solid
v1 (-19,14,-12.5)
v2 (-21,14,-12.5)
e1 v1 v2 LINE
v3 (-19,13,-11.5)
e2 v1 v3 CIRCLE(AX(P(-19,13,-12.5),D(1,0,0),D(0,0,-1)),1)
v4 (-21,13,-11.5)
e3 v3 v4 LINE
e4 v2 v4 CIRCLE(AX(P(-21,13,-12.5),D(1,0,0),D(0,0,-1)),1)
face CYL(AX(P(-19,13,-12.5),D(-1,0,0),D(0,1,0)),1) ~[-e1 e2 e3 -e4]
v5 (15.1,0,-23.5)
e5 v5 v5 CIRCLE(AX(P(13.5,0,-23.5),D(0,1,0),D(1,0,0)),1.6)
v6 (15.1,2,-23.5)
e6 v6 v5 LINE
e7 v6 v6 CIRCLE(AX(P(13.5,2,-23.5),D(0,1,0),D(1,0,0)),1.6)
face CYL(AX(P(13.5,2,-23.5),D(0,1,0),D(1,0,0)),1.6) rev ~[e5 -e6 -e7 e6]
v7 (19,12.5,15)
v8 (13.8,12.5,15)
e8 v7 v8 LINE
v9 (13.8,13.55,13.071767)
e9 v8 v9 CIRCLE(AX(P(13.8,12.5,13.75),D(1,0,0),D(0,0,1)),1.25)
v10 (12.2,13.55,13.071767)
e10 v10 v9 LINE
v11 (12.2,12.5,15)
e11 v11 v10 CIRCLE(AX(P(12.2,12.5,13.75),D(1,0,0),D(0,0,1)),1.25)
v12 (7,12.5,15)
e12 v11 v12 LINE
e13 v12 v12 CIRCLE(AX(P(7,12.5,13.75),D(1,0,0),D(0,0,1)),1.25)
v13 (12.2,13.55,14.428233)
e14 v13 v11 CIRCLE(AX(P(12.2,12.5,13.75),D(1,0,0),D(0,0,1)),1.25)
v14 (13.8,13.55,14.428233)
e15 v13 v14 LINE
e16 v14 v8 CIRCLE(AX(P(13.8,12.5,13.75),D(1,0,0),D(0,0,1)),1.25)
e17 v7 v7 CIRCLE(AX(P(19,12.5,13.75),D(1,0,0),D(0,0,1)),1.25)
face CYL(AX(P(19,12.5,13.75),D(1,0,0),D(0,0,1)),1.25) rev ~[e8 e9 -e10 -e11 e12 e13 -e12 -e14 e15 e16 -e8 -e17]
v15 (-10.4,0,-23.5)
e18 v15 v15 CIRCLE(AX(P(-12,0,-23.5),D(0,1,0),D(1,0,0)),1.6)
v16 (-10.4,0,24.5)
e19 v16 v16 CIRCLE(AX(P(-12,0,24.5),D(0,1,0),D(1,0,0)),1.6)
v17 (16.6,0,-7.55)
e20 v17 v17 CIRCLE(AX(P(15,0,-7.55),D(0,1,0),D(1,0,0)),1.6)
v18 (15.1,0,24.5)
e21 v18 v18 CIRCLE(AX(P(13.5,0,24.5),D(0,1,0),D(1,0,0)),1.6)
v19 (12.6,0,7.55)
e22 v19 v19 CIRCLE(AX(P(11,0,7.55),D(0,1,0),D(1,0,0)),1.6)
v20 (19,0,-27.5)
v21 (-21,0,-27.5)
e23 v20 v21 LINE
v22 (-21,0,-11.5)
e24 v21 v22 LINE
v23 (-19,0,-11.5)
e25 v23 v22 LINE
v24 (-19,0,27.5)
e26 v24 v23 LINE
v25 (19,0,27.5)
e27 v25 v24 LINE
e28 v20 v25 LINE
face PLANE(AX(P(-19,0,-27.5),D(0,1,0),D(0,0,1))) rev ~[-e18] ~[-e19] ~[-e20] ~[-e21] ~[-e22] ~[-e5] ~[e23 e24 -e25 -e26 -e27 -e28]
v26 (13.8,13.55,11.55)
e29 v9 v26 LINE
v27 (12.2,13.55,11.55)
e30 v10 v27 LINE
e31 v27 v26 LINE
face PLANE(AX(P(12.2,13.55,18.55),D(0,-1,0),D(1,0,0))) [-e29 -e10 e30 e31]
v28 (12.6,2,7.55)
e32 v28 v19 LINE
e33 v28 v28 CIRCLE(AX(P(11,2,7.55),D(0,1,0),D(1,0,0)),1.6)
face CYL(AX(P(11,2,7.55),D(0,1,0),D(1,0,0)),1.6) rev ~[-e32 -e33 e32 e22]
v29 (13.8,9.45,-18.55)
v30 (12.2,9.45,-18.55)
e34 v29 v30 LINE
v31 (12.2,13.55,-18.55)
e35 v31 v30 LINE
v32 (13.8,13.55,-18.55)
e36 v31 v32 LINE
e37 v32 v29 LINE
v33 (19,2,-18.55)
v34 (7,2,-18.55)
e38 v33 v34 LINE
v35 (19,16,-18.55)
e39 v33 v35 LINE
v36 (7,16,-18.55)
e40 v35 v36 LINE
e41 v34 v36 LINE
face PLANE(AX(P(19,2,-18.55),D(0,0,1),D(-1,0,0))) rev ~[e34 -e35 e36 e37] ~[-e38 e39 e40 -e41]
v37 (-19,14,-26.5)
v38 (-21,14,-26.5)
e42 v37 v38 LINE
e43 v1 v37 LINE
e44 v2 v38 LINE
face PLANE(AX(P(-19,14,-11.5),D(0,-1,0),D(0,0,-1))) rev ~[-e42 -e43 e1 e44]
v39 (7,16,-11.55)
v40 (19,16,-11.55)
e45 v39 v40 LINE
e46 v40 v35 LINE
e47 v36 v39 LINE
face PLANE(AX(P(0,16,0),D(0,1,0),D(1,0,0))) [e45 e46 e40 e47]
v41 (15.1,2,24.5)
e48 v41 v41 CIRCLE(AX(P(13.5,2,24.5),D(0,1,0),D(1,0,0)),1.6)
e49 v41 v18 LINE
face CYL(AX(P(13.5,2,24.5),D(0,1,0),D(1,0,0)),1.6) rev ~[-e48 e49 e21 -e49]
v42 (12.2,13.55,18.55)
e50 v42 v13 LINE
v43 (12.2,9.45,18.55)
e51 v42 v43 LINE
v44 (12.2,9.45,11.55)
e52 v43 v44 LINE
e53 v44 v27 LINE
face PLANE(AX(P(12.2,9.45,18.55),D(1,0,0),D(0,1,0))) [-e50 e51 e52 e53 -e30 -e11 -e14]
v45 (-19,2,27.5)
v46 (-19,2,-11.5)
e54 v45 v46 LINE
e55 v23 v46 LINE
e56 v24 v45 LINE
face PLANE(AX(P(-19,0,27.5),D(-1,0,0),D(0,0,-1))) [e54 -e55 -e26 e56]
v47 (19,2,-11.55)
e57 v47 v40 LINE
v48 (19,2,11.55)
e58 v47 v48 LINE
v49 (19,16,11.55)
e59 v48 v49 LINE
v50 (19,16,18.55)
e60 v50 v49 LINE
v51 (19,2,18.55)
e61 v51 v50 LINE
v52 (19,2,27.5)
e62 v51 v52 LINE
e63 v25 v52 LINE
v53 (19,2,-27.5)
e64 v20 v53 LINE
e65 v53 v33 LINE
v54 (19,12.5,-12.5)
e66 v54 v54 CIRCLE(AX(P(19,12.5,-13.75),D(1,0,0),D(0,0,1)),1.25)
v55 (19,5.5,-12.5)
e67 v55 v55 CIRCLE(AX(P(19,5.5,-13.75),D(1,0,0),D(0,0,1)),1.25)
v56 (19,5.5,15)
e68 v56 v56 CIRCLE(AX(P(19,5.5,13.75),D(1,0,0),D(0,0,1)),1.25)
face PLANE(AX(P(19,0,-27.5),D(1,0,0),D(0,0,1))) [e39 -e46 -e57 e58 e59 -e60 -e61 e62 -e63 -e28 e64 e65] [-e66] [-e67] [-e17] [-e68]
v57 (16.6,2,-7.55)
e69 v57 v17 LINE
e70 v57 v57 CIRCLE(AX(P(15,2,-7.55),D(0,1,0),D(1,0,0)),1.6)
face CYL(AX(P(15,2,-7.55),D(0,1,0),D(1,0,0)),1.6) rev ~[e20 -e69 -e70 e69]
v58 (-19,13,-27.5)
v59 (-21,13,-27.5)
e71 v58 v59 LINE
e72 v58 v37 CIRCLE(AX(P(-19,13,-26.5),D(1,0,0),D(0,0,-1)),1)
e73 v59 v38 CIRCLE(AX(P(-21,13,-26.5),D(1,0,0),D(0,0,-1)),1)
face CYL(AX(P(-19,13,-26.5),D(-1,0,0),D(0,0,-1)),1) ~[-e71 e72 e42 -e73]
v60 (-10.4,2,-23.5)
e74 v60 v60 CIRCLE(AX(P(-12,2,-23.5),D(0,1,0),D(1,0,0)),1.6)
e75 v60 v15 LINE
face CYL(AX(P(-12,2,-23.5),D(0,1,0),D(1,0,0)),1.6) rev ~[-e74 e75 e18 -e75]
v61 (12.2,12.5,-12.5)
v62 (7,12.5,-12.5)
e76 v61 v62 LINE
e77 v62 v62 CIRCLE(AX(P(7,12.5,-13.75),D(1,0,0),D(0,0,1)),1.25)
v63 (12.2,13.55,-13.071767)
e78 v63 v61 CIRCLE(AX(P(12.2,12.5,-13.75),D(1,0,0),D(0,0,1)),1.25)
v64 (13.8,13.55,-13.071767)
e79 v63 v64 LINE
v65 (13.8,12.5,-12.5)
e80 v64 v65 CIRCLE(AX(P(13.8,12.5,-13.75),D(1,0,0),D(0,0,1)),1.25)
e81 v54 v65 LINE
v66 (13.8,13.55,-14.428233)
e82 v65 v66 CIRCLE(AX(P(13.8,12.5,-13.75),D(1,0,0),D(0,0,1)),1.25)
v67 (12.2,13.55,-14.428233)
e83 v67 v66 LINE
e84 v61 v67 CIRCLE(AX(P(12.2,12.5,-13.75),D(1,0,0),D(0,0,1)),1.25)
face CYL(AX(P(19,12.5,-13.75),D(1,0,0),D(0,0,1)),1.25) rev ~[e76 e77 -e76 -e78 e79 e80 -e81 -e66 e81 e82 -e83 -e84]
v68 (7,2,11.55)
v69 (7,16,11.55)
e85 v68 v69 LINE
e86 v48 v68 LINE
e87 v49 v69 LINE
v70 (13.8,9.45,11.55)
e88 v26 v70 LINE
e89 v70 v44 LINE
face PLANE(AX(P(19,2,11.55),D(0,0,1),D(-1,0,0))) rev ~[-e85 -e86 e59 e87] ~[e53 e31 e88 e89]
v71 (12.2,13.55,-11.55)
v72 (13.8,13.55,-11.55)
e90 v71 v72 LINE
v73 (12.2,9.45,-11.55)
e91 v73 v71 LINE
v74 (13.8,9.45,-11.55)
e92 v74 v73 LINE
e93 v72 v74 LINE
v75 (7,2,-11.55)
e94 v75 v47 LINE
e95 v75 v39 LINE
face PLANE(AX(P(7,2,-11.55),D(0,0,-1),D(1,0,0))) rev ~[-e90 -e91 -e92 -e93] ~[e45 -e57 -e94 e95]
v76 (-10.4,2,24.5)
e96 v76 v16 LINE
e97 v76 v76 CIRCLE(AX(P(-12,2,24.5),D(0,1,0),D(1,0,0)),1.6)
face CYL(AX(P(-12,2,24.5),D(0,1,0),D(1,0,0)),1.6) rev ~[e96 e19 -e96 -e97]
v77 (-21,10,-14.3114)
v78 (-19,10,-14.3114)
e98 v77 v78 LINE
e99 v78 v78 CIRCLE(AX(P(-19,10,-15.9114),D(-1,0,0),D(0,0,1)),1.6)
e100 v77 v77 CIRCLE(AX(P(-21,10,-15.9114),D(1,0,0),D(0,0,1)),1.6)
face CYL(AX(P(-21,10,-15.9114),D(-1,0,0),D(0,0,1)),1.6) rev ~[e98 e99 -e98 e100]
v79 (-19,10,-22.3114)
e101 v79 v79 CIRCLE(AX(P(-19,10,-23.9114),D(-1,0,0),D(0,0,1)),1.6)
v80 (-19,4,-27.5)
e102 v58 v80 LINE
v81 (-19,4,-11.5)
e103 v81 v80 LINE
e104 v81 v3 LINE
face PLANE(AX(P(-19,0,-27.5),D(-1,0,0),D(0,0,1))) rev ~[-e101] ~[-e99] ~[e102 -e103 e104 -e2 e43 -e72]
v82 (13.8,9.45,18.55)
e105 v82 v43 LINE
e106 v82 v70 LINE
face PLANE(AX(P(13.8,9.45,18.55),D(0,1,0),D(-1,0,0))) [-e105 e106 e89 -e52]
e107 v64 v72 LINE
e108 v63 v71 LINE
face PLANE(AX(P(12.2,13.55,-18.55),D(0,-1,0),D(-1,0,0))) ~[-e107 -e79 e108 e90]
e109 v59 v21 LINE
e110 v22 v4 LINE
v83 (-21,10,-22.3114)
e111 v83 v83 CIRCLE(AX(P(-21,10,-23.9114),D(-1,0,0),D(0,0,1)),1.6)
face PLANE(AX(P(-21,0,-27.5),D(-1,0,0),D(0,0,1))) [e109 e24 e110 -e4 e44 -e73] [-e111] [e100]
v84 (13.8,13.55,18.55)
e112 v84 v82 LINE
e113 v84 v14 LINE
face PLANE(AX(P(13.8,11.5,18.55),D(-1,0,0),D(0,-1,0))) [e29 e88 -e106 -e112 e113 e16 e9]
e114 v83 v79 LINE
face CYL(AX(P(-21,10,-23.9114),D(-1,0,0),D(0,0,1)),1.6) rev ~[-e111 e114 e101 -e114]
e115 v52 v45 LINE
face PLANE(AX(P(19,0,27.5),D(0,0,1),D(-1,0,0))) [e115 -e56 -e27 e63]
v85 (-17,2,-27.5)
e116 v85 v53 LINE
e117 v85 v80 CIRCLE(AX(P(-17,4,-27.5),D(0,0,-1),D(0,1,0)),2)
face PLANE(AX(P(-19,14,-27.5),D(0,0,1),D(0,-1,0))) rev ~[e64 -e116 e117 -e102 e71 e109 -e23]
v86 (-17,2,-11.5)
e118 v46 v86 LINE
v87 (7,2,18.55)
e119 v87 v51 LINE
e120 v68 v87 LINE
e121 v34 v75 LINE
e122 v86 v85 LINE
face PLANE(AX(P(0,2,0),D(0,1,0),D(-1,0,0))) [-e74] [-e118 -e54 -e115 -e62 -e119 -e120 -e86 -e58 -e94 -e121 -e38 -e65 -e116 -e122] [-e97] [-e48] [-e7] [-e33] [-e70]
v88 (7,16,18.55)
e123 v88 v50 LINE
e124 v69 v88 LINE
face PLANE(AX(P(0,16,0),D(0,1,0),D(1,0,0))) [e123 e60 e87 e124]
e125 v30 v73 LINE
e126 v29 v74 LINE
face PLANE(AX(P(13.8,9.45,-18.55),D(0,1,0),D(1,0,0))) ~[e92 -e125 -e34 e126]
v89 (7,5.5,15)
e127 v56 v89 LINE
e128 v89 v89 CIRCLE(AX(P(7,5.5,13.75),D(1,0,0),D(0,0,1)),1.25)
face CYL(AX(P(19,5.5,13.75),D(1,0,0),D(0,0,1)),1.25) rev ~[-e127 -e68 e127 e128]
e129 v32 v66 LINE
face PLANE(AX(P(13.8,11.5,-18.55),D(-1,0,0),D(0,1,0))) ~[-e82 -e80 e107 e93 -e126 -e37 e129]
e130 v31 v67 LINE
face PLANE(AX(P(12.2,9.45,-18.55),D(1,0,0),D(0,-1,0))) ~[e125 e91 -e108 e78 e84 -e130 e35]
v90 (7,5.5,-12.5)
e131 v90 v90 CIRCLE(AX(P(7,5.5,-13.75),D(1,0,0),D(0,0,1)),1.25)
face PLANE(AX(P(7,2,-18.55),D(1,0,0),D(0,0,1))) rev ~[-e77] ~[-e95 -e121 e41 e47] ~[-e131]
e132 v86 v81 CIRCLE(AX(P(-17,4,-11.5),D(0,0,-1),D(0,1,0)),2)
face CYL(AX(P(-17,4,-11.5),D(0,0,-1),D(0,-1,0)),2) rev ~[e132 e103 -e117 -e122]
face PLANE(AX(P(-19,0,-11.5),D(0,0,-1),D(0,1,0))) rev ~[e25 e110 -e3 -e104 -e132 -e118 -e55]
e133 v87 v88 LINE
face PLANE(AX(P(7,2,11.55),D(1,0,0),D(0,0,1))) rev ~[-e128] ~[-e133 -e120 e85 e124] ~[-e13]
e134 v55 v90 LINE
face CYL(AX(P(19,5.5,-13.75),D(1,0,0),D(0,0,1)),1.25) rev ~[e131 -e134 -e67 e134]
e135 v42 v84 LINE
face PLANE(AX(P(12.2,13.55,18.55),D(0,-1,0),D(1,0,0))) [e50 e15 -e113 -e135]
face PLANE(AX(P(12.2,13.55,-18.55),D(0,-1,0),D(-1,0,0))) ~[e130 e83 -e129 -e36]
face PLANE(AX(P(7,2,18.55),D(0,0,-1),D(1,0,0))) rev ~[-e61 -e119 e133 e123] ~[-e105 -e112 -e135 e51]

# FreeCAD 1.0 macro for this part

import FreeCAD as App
import Part
import Sketcher
Q = App.Units.Quantity


def edges_at(feature, points):
    """Names of the edges that pass closest to the given points."""
    edges = feature.Shape.Edges
    near = lambda p: min(range(len(edges)), key=lambda i: edges[i].distToShape(Part.Vertex(*p))[0])
    return sorted({f"Edge{near(p) + 1}" for p in points})


def add_polygon(sketch, points):
    """Adds a closed chain of lines whose ends are joined by coincident constraints."""
    first, n = sketch.GeometryCount, len(points)
    for a, b in zip(points, points[1:] + points[:1]):
        sketch.addGeometry(Part.LineSegment(App.Vector(*a, 0), App.Vector(*b, 0)), False)
    for i in range(n):
        sketch.addConstraint(Sketcher.Constraint("Coincident", first + i, 2, first + (i + 1) % n, 1))

doc = App.newDocument("Part")
params = doc.addObject("Spreadsheet::Sheet", "Params")
for row, (alias, value) in enumerate([
    ("sketch1_width", "38 mm"),
    ("sketch1_height", "55 mm"),
    ("pad1_length", "2 mm"),
    ("sketch2_width", "12 mm"),
    ("sketch2_height", "7 mm"),
    ("pad2_length", "14 mm"),
    ("sketch3_diameter", "3.2 mm"),
    ("pocket1_length", "14 mm"),
    ("sketch4_diameter", "2.5 mm"),
    ("pocket2_length", "14 mm"),
    ("sketch5_diameter", "3.2 mm"),
    ("pocket3_length", "10 mm"),
    ("sketch6_width", "1.6 mm"),
    ("sketch6_height", "4.1 mm"),
    ("pocket4_length", "12 mm"),
    ("sketch7_width", "14 mm"),
    ("sketch7_height", "16 mm"),
    ("pad3_length", "2 mm"),
    ("sketch8_diameter", "3.2 mm"),
    ("pocket5_length", "2 mm"),
    ("fillet_radius", "2 mm"),
    ("fillet2_radius", "1 mm"),
], start=1):
    params.set(f"A{row}", alias)
    params.set(f"B{row}", "=" + value)
    params.setAlias(f"B{row}", alias)

body = doc.addObject("PartDesign::Body", "Body")

# Sketch on XZ plane
sketch1 = body.newObject("Sketcher::SketchObject", "Sketch")
sketch1.AttachmentSupport = (doc.getObject("XZ_Plane"), [""])
sketch1.MapMode = "FlatFace"
add_polygon(sketch1, [(-19, 27.5), (19, 27.5), (19, -27.5), (-19, -27.5)])  # lines 0-3
sketch1.addConstraint([
    Sketcher.Constraint("Horizontal", 0),
    Sketcher.Constraint("Vertical", 1),
    Sketcher.Constraint("Horizontal", 2),
    Sketcher.Constraint("Vertical", 3),
    Sketcher.Constraint("Symmetric", 0, 2, 2, 2, -1, 1),
    Sketcher.Constraint("DistanceX", 0, 1, 0, 2, Q("38 mm")),
    Sketcher.Constraint("DistanceY", 1, 2, 1, 1, Q("55 mm")),
])
sketch1.setExpression("Constraints[9]", "Params.sketch1_width")
sketch1.setExpression("Constraints[10]", "Params.sketch1_height")
pad1 = body.newObject("PartDesign::Pad", "Pad")
pad1.Profile = sketch1
pad1.setExpression("Length", "Params.pad1_length")
pad1.Reversed = True

# Sketch on XZ plane
sketch2 = body.newObject("Sketcher::SketchObject", "Sketch001")
sketch2.AttachmentSupport = (doc.getObject("XZ_Plane"), [""])
sketch2.MapMode = "FlatFace"
sketch2.AttachmentOffset = App.Placement(App.Vector(0, 0, -2), App.Rotation())
add_polygon(sketch2, [(7, 11.55), (7, 18.55), (19, 18.55), (19, 11.55)])  # lines 0-3
add_polygon(sketch2, [(7, -11.55), (19, -11.55), (19, -18.55), (7, -18.55)])  # lines 4-7
sketch2.addConstraint([
    Sketcher.Constraint("Vertical", 0),
    Sketcher.Constraint("Horizontal", 1),
    Sketcher.Constraint("Vertical", 2),
    Sketcher.Constraint("Horizontal", 3),
    Sketcher.Constraint("Horizontal", 4),
    Sketcher.Constraint("Vertical", 5),
    Sketcher.Constraint("Horizontal", 6),
    Sketcher.Constraint("Vertical", 7),
    Sketcher.Constraint("Symmetric", 2, 2, 4, 2, -1),
    Sketcher.Constraint("Symmetric", 0, 2, 6, 2, -1),
    Sketcher.Constraint("DistanceX", 1, 1, 1, 2, Q("12 mm")),
    Sketcher.Constraint("DistanceY", 0, 1, 0, 2, Q("7 mm")),
    Sketcher.Constraint("DistanceX", -1, 1, 0, 2, Q("7 mm")),
    Sketcher.Constraint("DistanceY", -1, 1, 2, 2, Q("11.55 mm")),
])
sketch2.setExpression("Constraints[18]", "Params.sketch2_width")
sketch2.setExpression("Constraints[19]", "Params.sketch2_height")
pad2 = body.newObject("PartDesign::Pad", "Pad001")
pad2.Profile = sketch2
pad2.setExpression("Length", "Params.pad2_length")
pad2.Reversed = True

# Sketch on XZ plane
sketch3 = body.newObject("Sketcher::SketchObject", "Sketch002")
sketch3.AttachmentSupport = (doc.getObject("XZ_Plane"), [""])
sketch3.MapMode = "FlatFace"
sketch3.AttachmentOffset = App.Placement(App.Vector(0, 0, -2), App.Rotation())
sketch3.addGeometry([
    Part.Circle(App.Vector(15, -7.55, 0), App.Vector(0, 0, 1), 1.6),
    Part.Circle(App.Vector(11, 7.55, 0), App.Vector(0, 0, 1), 1.6),
], False)
sketch3.addConstraint([
    Sketcher.Constraint("Equal", 0, 1),
    Sketcher.Constraint("Diameter", 0, Q("3.2 mm")),
    Sketcher.Constraint("DistanceX", 1, 3, 0, 3, Q("4 mm")),
    Sketcher.Constraint("DistanceX", -1, 1, 0, 3, Q("15 mm")),
    Sketcher.Constraint("DistanceY", 0, 3, 1, 3, Q("15.1 mm")),
    Sketcher.Constraint("DistanceY", 0, 3, -1, 1, Q("7.55 mm")),
])
sketch3.setExpression("Constraints[1]", "Params.sketch3_diameter")
pocket1 = body.newObject("PartDesign::Pocket", "Pocket")
pocket1.Profile = sketch3
pocket1.setExpression("Length", "Params.pocket1_length")
pocket1.Reversed = True

# Sketch on YZ plane
sketch4 = body.newObject("Sketcher::SketchObject", "Sketch003")
sketch4.AttachmentSupport = (doc.getObject("YZ_Plane"), [""])
sketch4.MapMode = "FlatFace"
sketch4.AttachmentOffset = App.Placement(App.Vector(0, 0, 19), App.Rotation())
sketch4.addGeometry([
    Part.Circle(App.Vector(5.5, -13.75, 0), App.Vector(0, 0, 1), 1.25),
    Part.Circle(App.Vector(12.5, -13.75, 0), App.Vector(0, 0, 1), 1.25),
    Part.Circle(App.Vector(12.5, 13.75, 0), App.Vector(0, 0, 1), 1.25),
    Part.Circle(App.Vector(5.5, 13.75, 0), App.Vector(0, 0, 1), 1.25),
], False)
sketch4.addConstraint([
    Sketcher.Constraint("Equal", 0, 1),
    Sketcher.Constraint("Equal", 1, 2),
    Sketcher.Constraint("Equal", 2, 3),
    Sketcher.Constraint("Symmetric", 1, 3, 2, 3, -1),
    Sketcher.Constraint("Symmetric", 0, 3, 3, 3, -1),
    Sketcher.Constraint("Horizontal", 0, 3, 1, 3),
    Sketcher.Constraint("Diameter", 0, Q("2.5 mm")),
    Sketcher.Constraint("DistanceX", 0, 3, 1, 3, Q("7 mm")),
    Sketcher.Constraint("DistanceY", 1, 3, 2, 3, Q("27.5 mm")),
    Sketcher.Constraint("DistanceX", -1, 1, 0, 3, Q("5.5 mm")),
])
sketch4.setExpression("Constraints[6]", "Params.sketch4_diameter")
pocket2 = body.newObject("PartDesign::Pocket", "Pocket001")
pocket2.Profile = sketch4
pocket2.setExpression("Length", "Params.pocket2_length")

# Sketch on XZ plane
sketch5 = body.newObject("Sketcher::SketchObject", "Sketch004")
sketch5.AttachmentSupport = (doc.getObject("XZ_Plane"), [""])
sketch5.MapMode = "FlatFace"
sketch5.AttachmentOffset = App.Placement(App.Vector(0, 0, -2), App.Rotation())
sketch5.addGeometry([
    Part.Circle(App.Vector(-12, 24.5, 0), App.Vector(0, 0, 1), 1.6),
    Part.Circle(App.Vector(-12, -23.5, 0), App.Vector(0, 0, 1), 1.6),
    Part.Circle(App.Vector(13.5, 24.5, 0), App.Vector(0, 0, 1), 1.6),
    Part.Circle(App.Vector(13.5, -23.5, 0), App.Vector(0, 0, 1), 1.6),
], False)
sketch5.addConstraint([
    Sketcher.Constraint("Equal", 0, 1),
    Sketcher.Constraint("Equal", 1, 2),
    Sketcher.Constraint("Equal", 2, 3),
    Sketcher.Constraint("Horizontal", 0, 3, 2, 3),
    Sketcher.Constraint("Horizontal", 1, 3, 3, 3),
    Sketcher.Constraint("Vertical", 0, 3, 1, 3),
    Sketcher.Constraint("Vertical", 2, 3, 3, 3),
    Sketcher.Constraint("Diameter", 0, Q("3.2 mm")),
    Sketcher.Constraint("DistanceX", 0, 3, -1, 1, Q("12 mm")),
    Sketcher.Constraint("DistanceY", 1, 3, 0, 3, Q("48 mm")),
    Sketcher.Constraint("DistanceY", -1, 1, 0, 3, Q("24.5 mm")),
    Sketcher.Constraint("DistanceX", -1, 1, 2, 3, Q("13.5 mm")),
])
sketch5.setExpression("Constraints[7]", "Params.sketch5_diameter")
pocket3 = body.newObject("PartDesign::Pocket", "Pocket002")
pocket3.Profile = sketch5
pocket3.setExpression("Length", "Params.pocket3_length")
pocket3.Reversed = True

# Sketch on XY plane
sketch6 = body.newObject("Sketcher::SketchObject", "Sketch005")
sketch6.AttachmentSupport = (doc.getObject("XY_Plane"), [""])
sketch6.MapMode = "FlatFace"
sketch6.AttachmentOffset = App.Placement(App.Vector(0, 0, 18.55), App.Rotation())
add_polygon(sketch6, [(13.8, 9.45), (13.8, 13.55), (12.2, 13.55), (12.2, 9.45)])  # lines 0-3
sketch6.addConstraint([
    Sketcher.Constraint("Vertical", 0),
    Sketcher.Constraint("Horizontal", 1),
    Sketcher.Constraint("Vertical", 2),
    Sketcher.Constraint("Horizontal", 3),
    Sketcher.Constraint("DistanceX", 1, 2, 1, 1, Q("1.6 mm")),
    Sketcher.Constraint("DistanceY", 0, 1, 0, 2, Q("4.1 mm")),
    Sketcher.Constraint("DistanceX", -1, 1, 0, 2, Q("13.8 mm")),
    Sketcher.Constraint("DistanceY", -1, 1, 0, 2, Q("13.55 mm")),
])
sketch6.setExpression("Constraints[8]", "Params.sketch6_width")
sketch6.setExpression("Constraints[9]", "Params.sketch6_height")
pocket4 = body.newObject("PartDesign::Pocket", "Pocket003")
pocket4.Profile = sketch6
pocket4.setExpression("Length", "Params.pocket4_length")
doc.recompute()

mirrored = body.newObject("PartDesign::Mirrored", "Mirrored")
mirrored.Originals = [pocket4]
mirrored.MirrorPlane = (doc.getObject("XY_Plane"), [""])
body.Tip = mirrored

# Sketch on YZ plane
sketch7 = body.newObject("Sketcher::SketchObject", "Sketch006")
sketch7.AttachmentSupport = (doc.getObject("YZ_Plane"), [""])
sketch7.MapMode = "FlatFace"
sketch7.AttachmentOffset = App.Placement(App.Vector(0, 0, -19), App.Rotation())
add_polygon(sketch7, [(14, -27.5), (0, -27.5), (0, -11.5), (14, -11.5)])  # lines 0-3
sketch7.addConstraint([
    Sketcher.Constraint("Horizontal", 0),
    Sketcher.Constraint("Vertical", 1),
    Sketcher.Constraint("Horizontal", 2),
    Sketcher.Constraint("Vertical", 3),
    Sketcher.Constraint("PointOnObject", 0, 2, -2),
    Sketcher.Constraint("DistanceX", 0, 2, 0, 1, Q("14 mm")),
    Sketcher.Constraint("DistanceY", 1, 1, 1, 2, Q("16 mm")),
    Sketcher.Constraint("DistanceY", 0, 2, -1, 1, Q("27.5 mm")),
])
sketch7.setExpression("Constraints[9]", "Params.sketch7_width")
sketch7.setExpression("Constraints[10]", "Params.sketch7_height")
pad3 = body.newObject("PartDesign::Pad", "Pad002")
pad3.Profile = sketch7
pad3.setExpression("Length", "Params.pad3_length")
pad3.Reversed = True

# Sketch on YZ plane
sketch8 = body.newObject("Sketcher::SketchObject", "Sketch007")
sketch8.AttachmentSupport = (doc.getObject("YZ_Plane"), [""])
sketch8.MapMode = "FlatFace"
sketch8.AttachmentOffset = App.Placement(App.Vector(0, 0, -21), App.Rotation())
sketch8.addGeometry([
    Part.Circle(App.Vector(10, -23.9114, 0), App.Vector(0, 0, 1), 1.6),
    Part.Circle(App.Vector(10, -15.9114, 0), App.Vector(0, 0, 1), 1.6),
], False)
sketch8.addConstraint([
    Sketcher.Constraint("Equal", 0, 1),
    Sketcher.Constraint("Vertical", 0, 3, 1, 3),
    Sketcher.Constraint("Diameter", 0, Q("3.2 mm")),
    Sketcher.Constraint("DistanceY", 0, 3, 1, 3, Q("8 mm")),
    Sketcher.Constraint("DistanceX", -1, 1, 0, 3, Q("10 mm")),
    Sketcher.Constraint("DistanceY", 0, 3, -1, 1, Q("23.9114 mm")),
])
sketch8.setExpression("Constraints[2]", "Params.sketch8_diameter")
pocket5 = body.newObject("PartDesign::Pocket", "Pocket004")
pocket5.Profile = sketch8
pocket5.setExpression("Length", "Params.pocket5_length")
pocket5.Reversed = True
doc.recompute()

fillet = body.newObject("PartDesign::Fillet", "Fillet")
fillet.Base = (pocket5, edges_at(pocket5, [(-19, 2, -19.5)]))
fillet.setExpression("Radius", "Params.fillet_radius")
doc.recompute()

fillet2 = body.newObject("PartDesign::Fillet", "Fillet001")
fillet2.Base = (fillet, edges_at(fillet, [(-20, 14, -27.5), (-20, 14, -11.5)]))
fillet2.setExpression("Radius", "Params.fillet2_radius")

doc.recompute()
